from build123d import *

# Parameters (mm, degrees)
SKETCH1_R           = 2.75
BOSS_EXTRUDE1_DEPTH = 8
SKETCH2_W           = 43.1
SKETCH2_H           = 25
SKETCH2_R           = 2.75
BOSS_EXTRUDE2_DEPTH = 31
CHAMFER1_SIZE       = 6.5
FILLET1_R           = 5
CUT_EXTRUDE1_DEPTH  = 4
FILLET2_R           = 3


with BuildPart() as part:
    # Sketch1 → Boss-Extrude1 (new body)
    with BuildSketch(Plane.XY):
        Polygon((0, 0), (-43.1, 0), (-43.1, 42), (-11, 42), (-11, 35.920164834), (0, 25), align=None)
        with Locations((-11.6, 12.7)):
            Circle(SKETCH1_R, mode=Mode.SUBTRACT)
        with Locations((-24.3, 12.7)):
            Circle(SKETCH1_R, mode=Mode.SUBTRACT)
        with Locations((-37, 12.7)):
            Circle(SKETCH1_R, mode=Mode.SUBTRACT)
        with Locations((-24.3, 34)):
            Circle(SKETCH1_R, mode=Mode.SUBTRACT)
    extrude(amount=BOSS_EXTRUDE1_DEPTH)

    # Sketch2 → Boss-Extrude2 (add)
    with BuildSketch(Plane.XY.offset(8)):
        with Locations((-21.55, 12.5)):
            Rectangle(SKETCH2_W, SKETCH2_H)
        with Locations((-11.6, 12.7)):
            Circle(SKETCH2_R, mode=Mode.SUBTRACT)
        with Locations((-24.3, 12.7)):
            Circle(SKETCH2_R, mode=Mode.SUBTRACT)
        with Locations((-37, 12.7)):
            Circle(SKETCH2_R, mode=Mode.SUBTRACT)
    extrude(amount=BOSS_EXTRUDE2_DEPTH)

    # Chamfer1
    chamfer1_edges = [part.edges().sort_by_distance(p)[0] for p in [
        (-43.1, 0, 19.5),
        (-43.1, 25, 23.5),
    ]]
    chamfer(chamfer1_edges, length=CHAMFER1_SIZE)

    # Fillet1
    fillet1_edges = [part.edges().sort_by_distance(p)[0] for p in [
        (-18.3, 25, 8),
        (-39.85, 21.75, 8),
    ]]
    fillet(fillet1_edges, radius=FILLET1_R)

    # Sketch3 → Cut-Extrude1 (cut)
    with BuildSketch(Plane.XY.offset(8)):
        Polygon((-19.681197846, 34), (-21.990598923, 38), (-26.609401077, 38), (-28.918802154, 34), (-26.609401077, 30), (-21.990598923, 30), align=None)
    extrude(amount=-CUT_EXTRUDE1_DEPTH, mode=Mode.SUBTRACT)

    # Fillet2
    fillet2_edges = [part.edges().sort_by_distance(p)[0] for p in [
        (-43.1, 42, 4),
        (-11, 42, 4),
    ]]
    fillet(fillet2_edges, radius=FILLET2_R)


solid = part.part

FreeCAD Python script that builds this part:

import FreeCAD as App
import Part
import Sketcher
Q = App.Units.Quantity


def edges_at(feature, points):
    """Names of the edges that pass closest to the given points."""
    edges = feature.Shape.Edges
    near = lambda p: min(range(len(edges)), key=lambda i: edges[i].distToShape(Part.Vertex(*p))[0])
    return sorted({f"Edge{near(p) + 1}" for p in points})

doc = App.newDocument("Part")
body = doc.addObject("PartDesign::Body", "Body")

# Sketch on XY plane
sketch1 = body.newObject("Sketcher::SketchObject", "Sketch")
sketch1.AttachmentSupport = (doc.getObject("XY_Plane"), [""])
sketch1.MapMode = "FlatFace"
sketch1.addGeometry([
    Part.LineSegment(App.Vector(-43.1, 0, 0), App.Vector(0, 0, 0)),  # 0
    Part.LineSegment(App.Vector(0, 0, 0), App.Vector(0, 25, 0)),  # 1
    Part.LineSegment(App.Vector(0, 25, 0), App.Vector(-11, 35.9, 0)),  # 2
    Part.LineSegment(App.Vector(-11, 35.9, 0), App.Vector(-11, 42, 0)),  # 3
    Part.LineSegment(App.Vector(-11, 42, 0), App.Vector(-43.1, 42, 0)),  # 4
    Part.LineSegment(App.Vector(-43.1, 42, 0), App.Vector(-43.1, 0, 0)),  # 5
    Part.Circle(App.Vector(-11.6, 12.7, 0), App.Vector(0, 0, 1), 2.8),  # 6
    Part.Circle(App.Vector(-24.3, 12.7, 0), App.Vector(0, 0, 1), 2.8),  # 7
    Part.Circle(App.Vector(-37, 12.7, 0), App.Vector(0, 0, 1), 2.8),  # 8
    Part.Circle(App.Vector(-24.3, 34, 0), App.Vector(0, 0, 1), 2.8),  # 9
], False)
sketch1.addConstraint([
    Sketcher.Constraint("Coincident", 0, 2, 1, 1),
    Sketcher.Constraint("Coincident", 1, 2, 2, 1),
    Sketcher.Constraint("Coincident", 2, 2, 3, 1),
    Sketcher.Constraint("Coincident", 3, 2, 4, 1),
    Sketcher.Constraint("Coincident", 4, 2, 5, 1),
    Sketcher.Constraint("Coincident", 5, 2, 0, 1),
    Sketcher.Constraint("Horizontal", 0),
    Sketcher.Constraint("Vertical", 1),
    Sketcher.Constraint("Vertical", 3),
    Sketcher.Constraint("Horizontal", 4),
    Sketcher.Constraint("Vertical", 5),
    Sketcher.Constraint("Coincident", 0, 2, -1, 1),
    Sketcher.Constraint("Equal", 6, 7),
    Sketcher.Constraint("Equal", 7, 8),
    Sketcher.Constraint("Equal", 8, 9),
    Sketcher.Constraint("Horizontal", 6, 3, 7, 3),
    Sketcher.Constraint("Horizontal", 7, 3, 8, 3),
    Sketcher.Constraint("Vertical", 7, 3, 9, 3),
    Sketcher.Constraint("Diameter", 6, 5.5),
    Sketcher.Constraint("DistanceY", 1, 1, 1, 2, 25.0),
    Sketcher.Constraint("DistanceY", 5, 2, 5, 1, 42.0),
    Sketcher.Constraint("DistanceX", 0, 1, 0, 2, 43.1),
    Sketcher.Constraint("DistanceX", 4, 2, 4, 1, 32.1),
    Sketcher.Constraint("DistanceX", 8, 3, -1, 1, 37.0),
    Sketcher.Constraint("DistanceY", -1, 1, 9, 3, 34.0),
    Sketcher.Constraint("Distance", 2, 15.5),
    Sketcher.Constraint("DistanceX", 6, 3, -1, 1, 11.6),
    Sketcher.Constraint("DistanceY", -1, 1, 6, 3, 12.7),
    Sketcher.Constraint("DistanceX", 7, 3, -1, 1, 24.3),
])
pad1 = body.newObject("PartDesign::Pad", "Pad")
pad1.Profile = sketch1
pad1.Length = 8

# Sketch on XY plane
sketch2 = body.newObject("Sketcher::SketchObject", "Sketch001")
sketch2.AttachmentSupport = (doc.getObject("XY_Plane"), [""])
sketch2.MapMode = "FlatFace"
sketch2.AttachmentOffset = App.Placement(App.Vector(0, 0, 8), App.Rotation())
sketch2.addGeometry([
    Part.LineSegment(App.Vector(-43.1, 25, 0), App.Vector(-43.1, 0, 0)),  # 0
    Part.LineSegment(App.Vector(-43.1, 0, 0), App.Vector(0, 0, 0)),  # 1
    Part.LineSegment(App.Vector(0, 0, 0), App.Vector(0, 25, 0)),  # 2
    Part.LineSegment(App.Vector(0, 25, 0), App.Vector(-43.1, 25, 0)),  # 3
    Part.Circle(App.Vector(-37, 12.7, 0), App.Vector(0, 0, 1), 2.8),  # 4
    Part.Circle(App.Vector(-24.3, 12.7, 0), App.Vector(0, 0, 1), 2.8),  # 5
    Part.Circle(App.Vector(-11.6, 12.7, 0), App.Vector(0, 0, 1), 2.8),  # 6
], False)
sketch2.addConstraint([
    Sketcher.Constraint("Coincident", 0, 2, 1, 1),
    Sketcher.Constraint("Coincident", 1, 2, 2, 1),
    Sketcher.Constraint("Coincident", 2, 2, 3, 1),
    Sketcher.Constraint("Coincident", 3, 2, 0, 1),
    Sketcher.Constraint("Vertical", 0),
    Sketcher.Constraint("Horizontal", 1),
    Sketcher.Constraint("Vertical", 2),
    Sketcher.Constraint("Horizontal", 3),
    Sketcher.Constraint("Coincident", 1, 2, -1, 1),
    Sketcher.Constraint("Equal", 4, 5),
    Sketcher.Constraint("Equal", 5, 6),
    Sketcher.Constraint("Horizontal", 4, 3, 5, 3),
    Sketcher.Constraint("Horizontal", 5, 3, 6, 3),
    Sketcher.Constraint("Diameter", 4, 5.5),
    Sketcher.Constraint("DistanceY", 0, 2, 0, 1, 25.0),
    Sketcher.Constraint("DistanceX", 1, 1, 1, 2, 43.1),
    Sketcher.Constraint("DistanceX", 4, 3, -1, 1, 37.0),
    Sketcher.Constraint("DistanceY", -1, 1, 4, 3, 12.7),
    Sketcher.Constraint("DistanceX", 5, 3, -1, 1, 24.3),
    Sketcher.Constraint("DistanceX", 6, 3, -1, 1, 11.6),
])
pad2 = body.newObject("PartDesign::Pad", "Pad001")
pad2.Profile = sketch2
pad2.Length = 31
doc.recompute()

chamfer = body.newObject("PartDesign::Chamfer", "Chamfer")
chamfer.Base = (pad2, edges_at(pad2, [(-43.1, 0, 19.5), (-43.1, 25, 23.5)]))
chamfer.Size = 6.5
doc.recompute()

fillet = body.newObject("PartDesign::Fillet", "Fillet")
fillet.Base = (chamfer, edges_at(chamfer, [(-18.3, 25, 8), (-39.85, 21.75, 8)]))
fillet.Radius = 5

# Sketch on XY plane
sketch3 = body.newObject("Sketcher::SketchObject", "Sketch002")
sketch3.AttachmentSupport = (doc.getObject("XY_Plane"), [""])
sketch3.MapMode = "FlatFace"
sketch3.AttachmentOffset = App.Placement(App.Vector(0, 0, 8), App.Rotation())
sketch3.addGeometry([
    Part.LineSegment(App.Vector(-19.7, 34, 0), App.Vector(-22, 38, 0)),  # 0
    Part.LineSegment(App.Vector(-22, 38, 0), App.Vector(-26.6, 38, 0)),  # 1
    Part.LineSegment(App.Vector(-26.6, 38, 0), App.Vector(-28.9, 34, 0)),  # 2
    Part.LineSegment(App.Vector(-28.9, 34, 0), App.Vector(-26.6, 30, 0)),  # 3
    Part.LineSegment(App.Vector(-26.6, 30, 0), App.Vector(-22, 30, 0)),  # 4
    Part.LineSegment(App.Vector(-22, 30, 0), App.Vector(-19.7, 34, 0)),  # 5
], False)
sketch3.addConstraint([
    Sketcher.Constraint("Coincident", 0, 2, 1, 1),
    Sketcher.Constraint("Coincident", 1, 2, 2, 1),
    Sketcher.Constraint("Coincident", 2, 2, 3, 1),
    Sketcher.Constraint("Coincident", 3, 2, 4, 1),
    Sketcher.Constraint("Coincident", 4, 2, 5, 1),
    Sketcher.Constraint("Coincident", 5, 2, 0, 1),
    Sketcher.Constraint("Horizontal", 1),
    Sketcher.Constraint("Horizontal", 4),
    Sketcher.Constraint("Parallel", 0, 3),
    Sketcher.Constraint("Parallel", 2, 5),
    Sketcher.Constraint("Horizontal", 2, 2, 5, 2),
    Sketcher.Constraint("Vertical", 1, 2, 3, 2),
    Sketcher.Constraint("Vertical", 0, 2, 4, 2),
    Sketcher.Constraint("Angle", 0, Q("120 deg")),
    Sketcher.Constraint("DistanceY", -1, 1, 0, 2, 38.0),
    Sketcher.Constraint("DistanceY", -1, 1, 2, 2, 34.0),
    Sketcher.Constraint("DistanceX", 0, 2, -1, 1, 21.990599),
    Sketcher.Constraint("DistanceX", 1, 2, -1, 1, 26.609401),
])
pocket1 = body.newObject("PartDesign::Pocket", "Pocket")
pocket1.Profile = sketch3
pocket1.Length = 4
doc.recompute()

fillet2 = body.newObject("PartDesign::Fillet", "Fillet001")
fillet2.Base = (pocket1, edges_at(pocket1, [(-43.1, 42, 4), (-11, 42, 4)]))
fillet2.Radius = 3

doc.recompute()
